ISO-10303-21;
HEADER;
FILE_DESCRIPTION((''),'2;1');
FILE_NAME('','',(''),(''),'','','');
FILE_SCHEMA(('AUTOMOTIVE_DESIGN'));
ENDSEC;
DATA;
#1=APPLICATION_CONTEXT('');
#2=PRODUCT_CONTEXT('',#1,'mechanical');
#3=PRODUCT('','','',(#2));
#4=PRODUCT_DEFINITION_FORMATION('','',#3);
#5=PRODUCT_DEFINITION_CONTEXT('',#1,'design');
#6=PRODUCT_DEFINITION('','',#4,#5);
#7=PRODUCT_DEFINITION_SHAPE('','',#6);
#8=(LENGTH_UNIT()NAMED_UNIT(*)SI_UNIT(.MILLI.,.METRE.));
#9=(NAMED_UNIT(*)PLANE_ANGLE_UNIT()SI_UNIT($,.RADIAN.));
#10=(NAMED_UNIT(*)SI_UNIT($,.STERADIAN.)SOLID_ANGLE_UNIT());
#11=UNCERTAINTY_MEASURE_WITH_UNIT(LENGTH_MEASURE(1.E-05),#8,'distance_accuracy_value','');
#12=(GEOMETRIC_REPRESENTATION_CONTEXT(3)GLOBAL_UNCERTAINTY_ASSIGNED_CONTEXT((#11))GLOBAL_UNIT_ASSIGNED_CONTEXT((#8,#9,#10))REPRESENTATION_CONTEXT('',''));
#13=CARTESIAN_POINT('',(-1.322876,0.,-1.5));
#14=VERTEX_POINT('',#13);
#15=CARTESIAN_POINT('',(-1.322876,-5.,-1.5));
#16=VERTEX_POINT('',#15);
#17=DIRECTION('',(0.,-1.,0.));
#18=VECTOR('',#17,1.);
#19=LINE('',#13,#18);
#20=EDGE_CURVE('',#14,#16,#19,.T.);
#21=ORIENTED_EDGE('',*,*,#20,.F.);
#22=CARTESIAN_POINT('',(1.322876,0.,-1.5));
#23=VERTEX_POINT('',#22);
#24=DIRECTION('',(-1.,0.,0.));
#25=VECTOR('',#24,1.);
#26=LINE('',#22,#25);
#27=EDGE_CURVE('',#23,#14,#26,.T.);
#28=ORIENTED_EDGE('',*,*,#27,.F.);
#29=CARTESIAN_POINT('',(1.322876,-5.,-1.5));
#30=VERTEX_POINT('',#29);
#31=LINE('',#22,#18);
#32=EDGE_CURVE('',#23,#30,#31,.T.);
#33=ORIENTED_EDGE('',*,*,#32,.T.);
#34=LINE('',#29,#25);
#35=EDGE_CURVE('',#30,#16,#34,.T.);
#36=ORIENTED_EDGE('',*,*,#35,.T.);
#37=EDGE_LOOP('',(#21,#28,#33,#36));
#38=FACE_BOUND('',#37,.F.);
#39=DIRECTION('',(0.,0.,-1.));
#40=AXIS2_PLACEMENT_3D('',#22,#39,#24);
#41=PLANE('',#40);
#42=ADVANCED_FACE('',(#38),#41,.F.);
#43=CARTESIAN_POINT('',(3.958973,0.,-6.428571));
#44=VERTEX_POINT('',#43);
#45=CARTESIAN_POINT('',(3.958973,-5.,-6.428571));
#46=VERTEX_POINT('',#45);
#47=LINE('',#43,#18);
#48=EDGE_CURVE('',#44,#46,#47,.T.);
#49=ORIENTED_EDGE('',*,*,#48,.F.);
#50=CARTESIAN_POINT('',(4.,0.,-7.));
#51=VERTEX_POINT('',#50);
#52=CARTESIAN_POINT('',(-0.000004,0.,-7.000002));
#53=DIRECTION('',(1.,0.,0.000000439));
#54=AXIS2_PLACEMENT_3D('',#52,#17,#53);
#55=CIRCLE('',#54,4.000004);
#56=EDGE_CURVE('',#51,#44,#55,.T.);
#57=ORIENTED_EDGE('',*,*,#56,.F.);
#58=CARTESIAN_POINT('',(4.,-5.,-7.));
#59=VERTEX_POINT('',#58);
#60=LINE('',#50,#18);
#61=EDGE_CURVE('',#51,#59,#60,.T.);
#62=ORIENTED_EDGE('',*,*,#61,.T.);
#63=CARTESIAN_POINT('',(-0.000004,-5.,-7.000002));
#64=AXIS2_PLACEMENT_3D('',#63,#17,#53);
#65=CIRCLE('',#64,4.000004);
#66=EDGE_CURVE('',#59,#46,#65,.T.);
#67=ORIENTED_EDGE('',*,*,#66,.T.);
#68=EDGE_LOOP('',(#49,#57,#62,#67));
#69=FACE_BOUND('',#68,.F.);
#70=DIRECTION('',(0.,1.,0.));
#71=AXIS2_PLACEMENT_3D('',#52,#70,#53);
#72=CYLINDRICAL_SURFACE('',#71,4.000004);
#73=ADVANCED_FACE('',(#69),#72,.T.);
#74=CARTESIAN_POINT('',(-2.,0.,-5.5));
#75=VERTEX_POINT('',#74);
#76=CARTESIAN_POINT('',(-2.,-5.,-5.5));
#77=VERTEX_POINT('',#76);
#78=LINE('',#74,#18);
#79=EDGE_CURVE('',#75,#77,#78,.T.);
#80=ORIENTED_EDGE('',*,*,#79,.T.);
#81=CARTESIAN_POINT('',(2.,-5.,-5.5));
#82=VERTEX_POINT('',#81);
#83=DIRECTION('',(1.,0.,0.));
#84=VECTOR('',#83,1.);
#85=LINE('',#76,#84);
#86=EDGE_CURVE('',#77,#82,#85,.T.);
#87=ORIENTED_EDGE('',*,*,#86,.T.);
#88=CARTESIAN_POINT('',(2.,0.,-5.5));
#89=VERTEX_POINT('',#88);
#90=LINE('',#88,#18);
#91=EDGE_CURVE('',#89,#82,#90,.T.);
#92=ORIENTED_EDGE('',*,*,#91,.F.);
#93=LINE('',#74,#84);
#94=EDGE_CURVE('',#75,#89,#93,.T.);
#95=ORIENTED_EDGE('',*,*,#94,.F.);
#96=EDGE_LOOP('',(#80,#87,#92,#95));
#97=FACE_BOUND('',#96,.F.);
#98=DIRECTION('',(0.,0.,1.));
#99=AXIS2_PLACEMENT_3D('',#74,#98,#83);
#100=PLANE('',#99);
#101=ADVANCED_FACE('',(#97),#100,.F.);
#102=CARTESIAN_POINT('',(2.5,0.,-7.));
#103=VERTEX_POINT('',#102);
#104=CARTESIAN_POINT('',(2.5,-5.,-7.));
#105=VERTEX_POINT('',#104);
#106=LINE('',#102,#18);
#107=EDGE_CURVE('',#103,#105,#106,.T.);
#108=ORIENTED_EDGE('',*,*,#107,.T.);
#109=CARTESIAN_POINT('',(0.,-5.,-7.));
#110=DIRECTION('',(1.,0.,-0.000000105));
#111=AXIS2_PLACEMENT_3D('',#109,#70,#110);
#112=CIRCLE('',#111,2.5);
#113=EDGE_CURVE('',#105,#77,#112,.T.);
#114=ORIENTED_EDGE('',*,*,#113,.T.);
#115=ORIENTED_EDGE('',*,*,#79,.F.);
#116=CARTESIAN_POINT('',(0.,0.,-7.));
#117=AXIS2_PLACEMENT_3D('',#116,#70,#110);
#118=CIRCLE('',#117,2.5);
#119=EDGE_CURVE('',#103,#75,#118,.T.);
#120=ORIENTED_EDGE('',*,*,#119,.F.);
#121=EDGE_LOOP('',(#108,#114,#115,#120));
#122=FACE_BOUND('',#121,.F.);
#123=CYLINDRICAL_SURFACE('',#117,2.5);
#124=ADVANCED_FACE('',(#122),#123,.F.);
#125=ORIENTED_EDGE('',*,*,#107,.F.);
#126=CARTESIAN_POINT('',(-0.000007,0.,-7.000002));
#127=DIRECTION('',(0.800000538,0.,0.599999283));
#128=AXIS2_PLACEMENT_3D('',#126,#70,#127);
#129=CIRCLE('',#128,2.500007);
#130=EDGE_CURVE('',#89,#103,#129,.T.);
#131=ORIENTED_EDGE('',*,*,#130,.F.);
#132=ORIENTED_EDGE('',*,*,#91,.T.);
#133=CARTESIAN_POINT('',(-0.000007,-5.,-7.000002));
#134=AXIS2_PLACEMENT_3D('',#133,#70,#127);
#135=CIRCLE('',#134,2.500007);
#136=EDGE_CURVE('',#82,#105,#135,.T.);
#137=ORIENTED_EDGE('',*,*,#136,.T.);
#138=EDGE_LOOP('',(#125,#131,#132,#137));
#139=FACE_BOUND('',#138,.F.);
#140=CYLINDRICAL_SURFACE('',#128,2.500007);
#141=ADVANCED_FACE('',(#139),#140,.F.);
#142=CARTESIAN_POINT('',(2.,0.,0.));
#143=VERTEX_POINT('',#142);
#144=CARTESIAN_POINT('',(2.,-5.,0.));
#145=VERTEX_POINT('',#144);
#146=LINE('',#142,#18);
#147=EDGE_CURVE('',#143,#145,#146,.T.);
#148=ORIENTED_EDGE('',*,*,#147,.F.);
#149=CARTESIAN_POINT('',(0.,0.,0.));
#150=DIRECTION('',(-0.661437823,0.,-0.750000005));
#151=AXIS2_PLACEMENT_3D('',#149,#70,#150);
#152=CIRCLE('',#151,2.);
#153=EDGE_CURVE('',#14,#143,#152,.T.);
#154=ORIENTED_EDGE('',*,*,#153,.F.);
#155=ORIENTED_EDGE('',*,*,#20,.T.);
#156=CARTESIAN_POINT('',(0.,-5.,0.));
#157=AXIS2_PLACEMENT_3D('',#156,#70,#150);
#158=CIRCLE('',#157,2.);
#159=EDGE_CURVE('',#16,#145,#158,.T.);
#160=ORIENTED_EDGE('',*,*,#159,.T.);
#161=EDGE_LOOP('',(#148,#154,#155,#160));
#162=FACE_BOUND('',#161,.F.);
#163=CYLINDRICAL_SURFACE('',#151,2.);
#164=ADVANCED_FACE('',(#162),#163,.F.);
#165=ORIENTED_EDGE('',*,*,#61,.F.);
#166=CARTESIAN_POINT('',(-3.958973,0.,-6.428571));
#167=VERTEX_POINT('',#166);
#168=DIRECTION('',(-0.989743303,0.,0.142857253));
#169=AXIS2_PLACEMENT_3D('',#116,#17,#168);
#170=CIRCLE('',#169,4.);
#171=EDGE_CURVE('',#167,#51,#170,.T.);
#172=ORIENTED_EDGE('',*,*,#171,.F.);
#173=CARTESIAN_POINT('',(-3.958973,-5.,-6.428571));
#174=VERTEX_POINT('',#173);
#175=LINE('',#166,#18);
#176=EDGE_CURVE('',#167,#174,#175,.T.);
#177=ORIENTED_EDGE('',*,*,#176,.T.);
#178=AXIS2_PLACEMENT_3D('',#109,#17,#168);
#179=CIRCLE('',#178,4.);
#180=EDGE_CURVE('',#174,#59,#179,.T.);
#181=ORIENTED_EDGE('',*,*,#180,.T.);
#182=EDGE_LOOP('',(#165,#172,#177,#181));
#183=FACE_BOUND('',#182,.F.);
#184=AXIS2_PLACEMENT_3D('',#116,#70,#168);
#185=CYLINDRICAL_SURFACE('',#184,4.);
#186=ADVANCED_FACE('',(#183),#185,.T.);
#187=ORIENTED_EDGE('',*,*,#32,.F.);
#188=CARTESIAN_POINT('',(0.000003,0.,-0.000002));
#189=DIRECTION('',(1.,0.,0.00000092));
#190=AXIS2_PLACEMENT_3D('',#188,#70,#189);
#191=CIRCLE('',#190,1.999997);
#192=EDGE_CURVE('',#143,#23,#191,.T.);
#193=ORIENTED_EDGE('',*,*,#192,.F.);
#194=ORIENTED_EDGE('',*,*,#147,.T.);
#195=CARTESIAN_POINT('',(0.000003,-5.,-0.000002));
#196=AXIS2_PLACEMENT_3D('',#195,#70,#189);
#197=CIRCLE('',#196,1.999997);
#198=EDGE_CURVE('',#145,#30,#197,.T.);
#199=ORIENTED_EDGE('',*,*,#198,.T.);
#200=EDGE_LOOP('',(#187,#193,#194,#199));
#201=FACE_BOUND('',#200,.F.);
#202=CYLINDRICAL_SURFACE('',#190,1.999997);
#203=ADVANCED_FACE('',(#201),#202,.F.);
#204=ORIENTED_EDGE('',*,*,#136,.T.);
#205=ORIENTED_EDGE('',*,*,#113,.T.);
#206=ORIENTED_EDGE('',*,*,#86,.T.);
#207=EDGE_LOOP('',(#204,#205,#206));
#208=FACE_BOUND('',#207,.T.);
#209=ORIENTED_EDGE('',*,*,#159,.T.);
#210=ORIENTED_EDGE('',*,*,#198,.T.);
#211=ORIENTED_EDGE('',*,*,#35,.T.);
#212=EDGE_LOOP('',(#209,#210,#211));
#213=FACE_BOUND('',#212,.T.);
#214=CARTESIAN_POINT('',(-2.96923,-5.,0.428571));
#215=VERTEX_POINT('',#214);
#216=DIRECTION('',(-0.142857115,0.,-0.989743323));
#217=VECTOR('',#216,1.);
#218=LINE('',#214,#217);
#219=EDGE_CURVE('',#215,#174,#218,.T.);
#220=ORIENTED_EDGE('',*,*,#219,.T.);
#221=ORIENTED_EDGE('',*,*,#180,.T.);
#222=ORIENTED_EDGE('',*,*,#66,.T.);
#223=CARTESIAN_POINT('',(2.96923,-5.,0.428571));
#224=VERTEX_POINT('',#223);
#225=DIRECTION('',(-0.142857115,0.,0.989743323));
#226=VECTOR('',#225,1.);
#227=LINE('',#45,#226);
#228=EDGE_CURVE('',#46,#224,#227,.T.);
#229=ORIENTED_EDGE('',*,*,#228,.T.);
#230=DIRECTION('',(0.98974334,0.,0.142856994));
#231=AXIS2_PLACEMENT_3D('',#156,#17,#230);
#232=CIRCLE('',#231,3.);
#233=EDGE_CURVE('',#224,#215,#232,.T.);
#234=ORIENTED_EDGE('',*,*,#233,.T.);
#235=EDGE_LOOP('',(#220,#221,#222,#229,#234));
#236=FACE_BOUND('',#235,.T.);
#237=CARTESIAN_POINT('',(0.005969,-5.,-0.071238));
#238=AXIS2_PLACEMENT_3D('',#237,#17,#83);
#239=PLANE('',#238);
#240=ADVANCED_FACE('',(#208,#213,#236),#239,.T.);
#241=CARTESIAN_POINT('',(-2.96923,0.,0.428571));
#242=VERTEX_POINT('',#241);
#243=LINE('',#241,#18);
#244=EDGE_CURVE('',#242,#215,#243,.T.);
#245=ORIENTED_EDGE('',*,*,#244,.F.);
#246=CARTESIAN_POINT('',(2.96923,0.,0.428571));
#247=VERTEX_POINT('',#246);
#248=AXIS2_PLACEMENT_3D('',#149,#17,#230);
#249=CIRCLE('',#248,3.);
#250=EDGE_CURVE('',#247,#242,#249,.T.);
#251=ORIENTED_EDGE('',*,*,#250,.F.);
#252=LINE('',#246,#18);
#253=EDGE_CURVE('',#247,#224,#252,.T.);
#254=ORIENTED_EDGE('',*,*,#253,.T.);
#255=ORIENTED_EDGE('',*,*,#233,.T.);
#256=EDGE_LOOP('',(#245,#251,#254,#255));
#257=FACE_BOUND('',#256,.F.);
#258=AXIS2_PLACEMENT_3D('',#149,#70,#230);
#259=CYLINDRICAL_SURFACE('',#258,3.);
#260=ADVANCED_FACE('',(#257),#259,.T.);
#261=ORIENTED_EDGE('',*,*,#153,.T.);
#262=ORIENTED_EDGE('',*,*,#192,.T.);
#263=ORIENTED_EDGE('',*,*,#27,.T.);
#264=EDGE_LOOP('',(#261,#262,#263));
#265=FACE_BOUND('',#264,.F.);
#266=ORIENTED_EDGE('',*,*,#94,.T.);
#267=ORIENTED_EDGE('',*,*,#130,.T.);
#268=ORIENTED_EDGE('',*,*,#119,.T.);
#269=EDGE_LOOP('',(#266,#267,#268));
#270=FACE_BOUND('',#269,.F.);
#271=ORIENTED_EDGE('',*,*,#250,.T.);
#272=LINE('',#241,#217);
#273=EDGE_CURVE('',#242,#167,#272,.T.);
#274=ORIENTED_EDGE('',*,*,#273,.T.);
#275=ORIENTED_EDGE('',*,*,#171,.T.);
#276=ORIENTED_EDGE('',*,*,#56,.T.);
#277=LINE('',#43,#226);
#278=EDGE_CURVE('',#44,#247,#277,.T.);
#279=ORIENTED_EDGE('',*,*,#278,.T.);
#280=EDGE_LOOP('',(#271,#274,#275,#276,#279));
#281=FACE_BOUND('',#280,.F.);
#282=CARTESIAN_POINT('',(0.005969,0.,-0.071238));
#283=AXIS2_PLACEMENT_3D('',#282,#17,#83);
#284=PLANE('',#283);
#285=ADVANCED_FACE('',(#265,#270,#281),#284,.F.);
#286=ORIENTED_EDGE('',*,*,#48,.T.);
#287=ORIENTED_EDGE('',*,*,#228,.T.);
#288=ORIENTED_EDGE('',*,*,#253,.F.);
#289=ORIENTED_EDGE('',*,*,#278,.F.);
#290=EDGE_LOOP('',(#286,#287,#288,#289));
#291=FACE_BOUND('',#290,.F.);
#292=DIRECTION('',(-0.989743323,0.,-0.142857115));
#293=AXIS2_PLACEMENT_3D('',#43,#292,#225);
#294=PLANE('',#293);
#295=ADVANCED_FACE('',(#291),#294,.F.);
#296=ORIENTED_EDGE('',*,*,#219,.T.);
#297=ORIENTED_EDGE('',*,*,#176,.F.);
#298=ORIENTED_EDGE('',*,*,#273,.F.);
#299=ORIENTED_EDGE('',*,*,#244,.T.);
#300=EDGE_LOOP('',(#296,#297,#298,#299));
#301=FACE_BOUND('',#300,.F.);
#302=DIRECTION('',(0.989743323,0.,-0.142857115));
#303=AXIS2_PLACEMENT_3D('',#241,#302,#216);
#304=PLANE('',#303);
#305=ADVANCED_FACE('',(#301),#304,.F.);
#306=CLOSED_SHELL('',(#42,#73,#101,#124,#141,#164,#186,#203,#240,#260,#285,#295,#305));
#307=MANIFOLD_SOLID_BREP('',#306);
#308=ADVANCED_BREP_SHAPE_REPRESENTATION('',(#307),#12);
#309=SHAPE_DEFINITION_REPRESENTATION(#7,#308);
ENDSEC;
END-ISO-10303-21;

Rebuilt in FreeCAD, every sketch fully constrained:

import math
import FreeCAD as App
import Part
import Sketcher
Q = App.Units.Quantity

doc = App.newDocument("Part")
body = doc.addObject("PartDesign::Body", "Body")

# Sketch on XZ plane
sketch1 = doc.addObject("Sketcher::SketchObject", "Sketch")
body.addObject(sketch1)
sketch1.AttachmentSupport = (doc.XZ_Plane, [""])
sketch1.MapMode = "FlatFace"
sketch1.addGeometry([
    Part.LineSegment(App.Vector(4, -6.4, 0), App.Vector(3, 0.4, 0)),  # 0
    Part.ArcOfCircle(Part.Circle(App.Vector(0, 0, 0), App.Vector(0, 0, 1), 3), math.radians(8), math.radians(172)),  # 1
    Part.LineSegment(App.Vector(-3, 0.4, 0), App.Vector(-4, -6.4, 0)),  # 2
    Part.ArcOfCircle(Part.Circle(App.Vector(0, -7, 0), App.Vector(0, 0, 1), 4), math.radians(172), math.radians(360)),  # 3
    Part.ArcOfCircle(Part.Circle(App.Vector(0, -7, 0), App.Vector(0, 0, 1), 4), math.radians(0), math.radians(8.21)),  # 4
    Part.ArcOfCircle(Part.Circle(App.Vector(0, -7, 0), App.Vector(0, 0, 1), 2.5), math.radians(143), math.radians(360)),  # 5
    Part.LineSegment(App.Vector(-2, -5.5, 0), App.Vector(2, -5.5, 0)),  # 6
    Part.ArcOfCircle(Part.Circle(App.Vector(0, -7, 0), App.Vector(0, 0, 1), 2.5), math.radians(0), math.radians(37)),  # 7
    Part.ArcOfCircle(Part.Circle(App.Vector(0, 0, 0), App.Vector(0, 0, 1), 2), math.radians(0), math.radians(229)),  # 8
    Part.ArcOfCircle(Part.Circle(App.Vector(0, 0, 0), App.Vector(0, 0, 1), 2), math.radians(-49), math.radians(0)),  # 9
    Part.LineSegment(App.Vector(1.3, -1.5, 0), App.Vector(-1.3, -1.5, 0)),  # 10
], False)
sketch1.addConstraint([
    Sketcher.Constraint("Tangent", 0, 2, 1, 1),
    Sketcher.Constraint("Tangent", 1, 2, 2, 1),
    Sketcher.Constraint("Tangent", 2, 2, 3, 1),
    Sketcher.Constraint("Tangent", 3, 2, 4, 1),
    Sketcher.Constraint("Tangent", 4, 2, 0, 1),
    Sketcher.Constraint("Coincident", 5, 1, 6, 1),
    Sketcher.Constraint("Coincident", 6, 2, 7, 2),
    Sketcher.Constraint("Tangent", 7, 1, 5, 2),
    Sketcher.Constraint("Tangent", 8, 1, 9, 2),
    Sketcher.Constraint("Coincident", 9, 1, 10, 1),
    Sketcher.Constraint("Coincident", 10, 2, 8, 2),
    Sketcher.Constraint("Horizontal", 6),
    Sketcher.Constraint("Horizontal", 10),
    Sketcher.Constraint("Coincident", 1, 3, -1, 1),
    Sketcher.Constraint("Coincident", 8, 3, -1, 1),
    Sketcher.Constraint("Coincident", 5, 3, 3, 3),
    Sketcher.Constraint("Symmetric", 2, 2, 4, 2, -2),
    Sketcher.Constraint("PointOnObject", 8, 1, -1),
    Sketcher.Constraint("Horizontal", 5, 3, 3, 2),
    Sketcher.Constraint("Horizontal", 3, 2, 7, 1),
    Sketcher.Constraint("Vertical", 6, 2, 8, 1),
    Sketcher.Constraint("Radius", 1, Q("3 mm")),
    Sketcher.Constraint("Radius", 3, Q("4 mm")),
    Sketcher.Constraint("Radius", 8, Q("2 mm")),
    Sketcher.Constraint("Radius", 5, Q("2.5 mm")),
    Sketcher.Constraint("DistanceX", 6, 1, 6, 2, Q("4 mm")),
    Sketcher.Constraint("DistanceY", 3, 3, -1, 1, Q("7 mm")),
    Sketcher.Constraint("DistanceY", 9, 1, -1, 1, Q("1.5 mm")),
    Sketcher.Constraint("Radius", 9, Q("1.999997 mm")),
])
pad1 = doc.addObject("PartDesign::Pad", "Pad")
body.addObject(pad1)
pad1.Profile = sketch1
pad1.Length = 5

doc.recompute()
